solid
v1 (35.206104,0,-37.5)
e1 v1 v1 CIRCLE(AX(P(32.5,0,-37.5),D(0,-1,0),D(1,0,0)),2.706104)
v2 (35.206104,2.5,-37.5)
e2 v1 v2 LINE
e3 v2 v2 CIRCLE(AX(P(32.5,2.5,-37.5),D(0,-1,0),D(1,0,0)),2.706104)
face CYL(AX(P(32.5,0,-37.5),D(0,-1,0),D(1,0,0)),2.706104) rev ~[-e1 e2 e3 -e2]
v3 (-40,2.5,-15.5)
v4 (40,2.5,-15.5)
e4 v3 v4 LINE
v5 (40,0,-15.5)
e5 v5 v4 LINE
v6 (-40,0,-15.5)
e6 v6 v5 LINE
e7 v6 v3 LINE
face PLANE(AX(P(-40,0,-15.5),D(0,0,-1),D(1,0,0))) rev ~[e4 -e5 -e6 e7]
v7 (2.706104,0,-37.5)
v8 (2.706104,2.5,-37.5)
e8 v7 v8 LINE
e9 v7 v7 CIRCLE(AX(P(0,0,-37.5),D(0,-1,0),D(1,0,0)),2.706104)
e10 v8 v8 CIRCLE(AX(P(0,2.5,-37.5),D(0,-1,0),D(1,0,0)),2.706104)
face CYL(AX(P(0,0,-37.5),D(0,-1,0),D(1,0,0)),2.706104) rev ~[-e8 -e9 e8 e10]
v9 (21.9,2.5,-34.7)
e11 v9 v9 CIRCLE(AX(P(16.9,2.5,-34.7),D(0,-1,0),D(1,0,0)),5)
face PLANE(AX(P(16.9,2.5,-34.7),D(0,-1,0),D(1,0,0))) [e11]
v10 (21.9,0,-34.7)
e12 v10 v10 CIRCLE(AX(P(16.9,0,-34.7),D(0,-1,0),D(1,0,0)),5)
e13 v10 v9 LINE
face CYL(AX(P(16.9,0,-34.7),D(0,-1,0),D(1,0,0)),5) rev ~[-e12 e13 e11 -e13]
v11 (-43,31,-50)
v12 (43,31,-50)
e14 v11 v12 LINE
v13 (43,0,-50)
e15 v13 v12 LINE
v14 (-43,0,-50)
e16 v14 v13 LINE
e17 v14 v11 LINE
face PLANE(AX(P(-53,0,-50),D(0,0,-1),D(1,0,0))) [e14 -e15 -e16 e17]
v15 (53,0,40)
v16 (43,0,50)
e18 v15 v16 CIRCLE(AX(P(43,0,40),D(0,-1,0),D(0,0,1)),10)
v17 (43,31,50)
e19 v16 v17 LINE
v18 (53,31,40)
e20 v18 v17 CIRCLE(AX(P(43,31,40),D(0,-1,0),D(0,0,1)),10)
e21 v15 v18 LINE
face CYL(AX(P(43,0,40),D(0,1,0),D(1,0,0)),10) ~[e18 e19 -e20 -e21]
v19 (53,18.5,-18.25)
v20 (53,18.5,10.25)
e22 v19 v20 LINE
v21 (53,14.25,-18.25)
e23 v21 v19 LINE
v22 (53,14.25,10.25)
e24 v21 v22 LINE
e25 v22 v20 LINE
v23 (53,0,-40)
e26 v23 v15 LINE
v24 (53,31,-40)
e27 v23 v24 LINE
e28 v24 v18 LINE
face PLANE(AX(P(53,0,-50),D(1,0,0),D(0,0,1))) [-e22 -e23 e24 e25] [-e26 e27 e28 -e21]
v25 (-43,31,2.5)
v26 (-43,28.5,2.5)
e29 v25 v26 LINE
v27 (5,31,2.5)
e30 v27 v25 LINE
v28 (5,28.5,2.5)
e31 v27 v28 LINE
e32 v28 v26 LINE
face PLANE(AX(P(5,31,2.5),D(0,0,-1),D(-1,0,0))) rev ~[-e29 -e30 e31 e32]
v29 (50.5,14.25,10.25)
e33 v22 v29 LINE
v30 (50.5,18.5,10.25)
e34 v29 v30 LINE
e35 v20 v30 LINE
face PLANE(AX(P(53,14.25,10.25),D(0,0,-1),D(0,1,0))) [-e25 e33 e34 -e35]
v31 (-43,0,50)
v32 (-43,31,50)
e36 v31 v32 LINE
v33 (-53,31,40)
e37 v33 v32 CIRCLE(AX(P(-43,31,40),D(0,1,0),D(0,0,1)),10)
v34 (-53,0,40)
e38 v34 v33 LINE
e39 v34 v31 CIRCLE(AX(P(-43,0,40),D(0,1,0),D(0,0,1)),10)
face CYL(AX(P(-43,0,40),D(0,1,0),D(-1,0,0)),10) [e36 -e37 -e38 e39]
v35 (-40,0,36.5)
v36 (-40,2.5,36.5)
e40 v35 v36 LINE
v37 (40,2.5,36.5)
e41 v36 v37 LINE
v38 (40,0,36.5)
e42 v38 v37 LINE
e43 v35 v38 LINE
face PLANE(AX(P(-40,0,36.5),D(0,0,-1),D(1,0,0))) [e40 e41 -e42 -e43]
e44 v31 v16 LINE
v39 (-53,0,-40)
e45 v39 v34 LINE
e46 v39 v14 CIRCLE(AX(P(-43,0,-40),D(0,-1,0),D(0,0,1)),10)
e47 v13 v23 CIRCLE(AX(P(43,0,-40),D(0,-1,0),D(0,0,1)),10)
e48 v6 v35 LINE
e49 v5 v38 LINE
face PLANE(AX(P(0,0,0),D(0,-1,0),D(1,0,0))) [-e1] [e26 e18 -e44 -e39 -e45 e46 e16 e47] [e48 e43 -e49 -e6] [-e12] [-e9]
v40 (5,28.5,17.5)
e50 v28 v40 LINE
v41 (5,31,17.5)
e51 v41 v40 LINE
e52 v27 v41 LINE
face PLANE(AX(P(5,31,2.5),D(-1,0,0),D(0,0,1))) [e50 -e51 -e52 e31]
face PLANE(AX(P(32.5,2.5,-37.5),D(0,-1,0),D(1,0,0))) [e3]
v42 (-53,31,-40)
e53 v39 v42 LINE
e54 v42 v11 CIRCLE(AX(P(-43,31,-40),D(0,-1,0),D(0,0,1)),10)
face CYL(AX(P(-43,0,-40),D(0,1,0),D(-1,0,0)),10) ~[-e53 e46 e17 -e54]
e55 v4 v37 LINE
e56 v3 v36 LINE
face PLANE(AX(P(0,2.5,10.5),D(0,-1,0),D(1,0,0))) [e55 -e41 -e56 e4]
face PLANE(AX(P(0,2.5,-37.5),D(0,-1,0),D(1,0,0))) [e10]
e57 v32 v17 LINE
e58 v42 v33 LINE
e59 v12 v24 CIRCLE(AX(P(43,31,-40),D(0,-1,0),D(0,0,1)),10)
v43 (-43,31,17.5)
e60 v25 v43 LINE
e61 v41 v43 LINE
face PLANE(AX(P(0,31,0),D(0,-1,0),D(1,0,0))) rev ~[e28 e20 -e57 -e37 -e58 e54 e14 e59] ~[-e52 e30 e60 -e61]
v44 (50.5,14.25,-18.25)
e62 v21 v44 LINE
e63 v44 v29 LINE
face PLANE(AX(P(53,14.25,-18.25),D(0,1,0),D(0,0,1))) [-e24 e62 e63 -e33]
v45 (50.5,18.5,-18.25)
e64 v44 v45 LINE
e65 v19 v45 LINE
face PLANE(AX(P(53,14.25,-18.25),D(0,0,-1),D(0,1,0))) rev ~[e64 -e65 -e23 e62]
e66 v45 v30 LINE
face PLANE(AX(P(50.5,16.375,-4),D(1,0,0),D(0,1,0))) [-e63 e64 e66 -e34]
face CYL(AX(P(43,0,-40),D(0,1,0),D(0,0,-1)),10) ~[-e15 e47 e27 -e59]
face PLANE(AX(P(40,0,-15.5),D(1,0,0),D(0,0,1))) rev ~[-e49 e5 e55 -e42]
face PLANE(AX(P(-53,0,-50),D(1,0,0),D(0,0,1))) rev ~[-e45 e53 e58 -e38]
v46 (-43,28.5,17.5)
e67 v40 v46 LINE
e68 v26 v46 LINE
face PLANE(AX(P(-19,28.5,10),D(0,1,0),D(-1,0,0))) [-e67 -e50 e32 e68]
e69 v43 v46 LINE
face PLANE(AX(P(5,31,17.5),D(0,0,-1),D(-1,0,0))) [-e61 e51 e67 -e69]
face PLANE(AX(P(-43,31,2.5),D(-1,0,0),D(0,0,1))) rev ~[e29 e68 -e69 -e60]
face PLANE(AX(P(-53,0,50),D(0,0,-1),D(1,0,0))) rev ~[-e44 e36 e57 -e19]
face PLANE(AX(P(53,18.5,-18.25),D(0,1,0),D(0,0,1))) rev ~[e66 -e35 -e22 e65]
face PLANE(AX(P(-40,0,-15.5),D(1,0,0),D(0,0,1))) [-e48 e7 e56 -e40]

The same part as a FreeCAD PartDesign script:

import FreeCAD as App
import Part
import Sketcher
Q = App.Units.Quantity


def edges_at(feature, points):
    """Names of the edges that pass closest to the given points."""
    edges = feature.Shape.Edges
    near = lambda p: min(range(len(edges)), key=lambda i: edges[i].distToShape(Part.Vertex(*p))[0])
    return sorted({f"Edge{near(p) + 1}" for p in points})

doc = App.newDocument("Part")
params = doc.addObject("Spreadsheet::Sheet", "Params")
for row, (alias, value) in enumerate([
    ("sketch1_width", "106 mm"),
    ("sketch1_height", "100 mm"),
    ("pad1_length", "31 mm"),
    ("fillet_radius", "10 mm"),
    ("sketch2_diameter", "10 mm"),
    ("sketch2_width", "80 mm"),
    ("sketch2_height", "52 mm"),
    ("pocket1_length", "2.5 mm"),
    ("sketch3_width", "48 mm"),
    ("sketch3_height", "15 mm"),
    ("pocket2_length", "2.5 mm"),
    ("sketch4_height", "28.5 mm"),
    ("sketch4_width", "4.25 mm"),
    ("pocket3_length", "2.5 mm"),
], start=1):
    params.set(f"A{row}", alias)
    params.set(f"B{row}", "=" + value)
    params.setAlias(f"B{row}", alias)

body = doc.addObject("PartDesign::Body", "Body")

sketch1 = body.newObject("Sketcher::SketchObject", "Sketch")
sketch1.AttachmentSupport = (doc.getObject("XZ_Plane"), [""])
sketch1.MapMode = "FlatFace"
sketch1.addGeometry([
    Part.LineSegment(App.Vector(-53, 50, 0), App.Vector(-53, -50, 0)),
    Part.LineSegment(App.Vector(-53, -50, 0), App.Vector(53, -50, 0)),
    Part.LineSegment(App.Vector(53, -50, 0), App.Vector(53, 50, 0)),
    Part.LineSegment(App.Vector(53, 50, 0), App.Vector(-53, 50, 0)),
], False)
sketch1.addConstraint([
    Sketcher.Constraint("Coincident", 0, 2, 1, 1),
    Sketcher.Constraint("Coincident", 1, 2, 2, 1),
    Sketcher.Constraint("Coincident", 2, 2, 3, 1),
    Sketcher.Constraint("Coincident", 3, 2, 0, 1),
    Sketcher.Constraint("Vertical", 0),
    Sketcher.Constraint("Horizontal", 1),
    Sketcher.Constraint("Vertical", 2),
    Sketcher.Constraint("Horizontal", 3),
    Sketcher.Constraint("Symmetric", 0, 2, 2, 2, -1, 1),
    Sketcher.Constraint("DistanceX", 1, 1, 1, 2, Q("106 mm")),
    Sketcher.Constraint("DistanceY", 0, 2, 0, 1, Q("100 mm")),
])
sketch1.setExpression("Constraints[9]", "Params.sketch1_width")
sketch1.setExpression("Constraints[10]", "Params.sketch1_height")
pad1 = body.newObject("PartDesign::Pad", "Pad")
pad1.Profile = sketch1
pad1.setExpression("Length", "Params.pad1_length")
pad1.Reversed = True
doc.recompute()

fillet = body.newObject("PartDesign::Fillet", "Fillet")
fillet.Base = (pad1, edges_at(pad1, [
    (53, 15.5, -50),
    (53, 15.5, 50),
    (-53, 15.5, 50),
    (-53, 15.5, -50),
]))
fillet.setExpression("Radius", "Params.fillet_radius")

sketch2 = body.newObject("Sketcher::SketchObject", "Sketch001")
sketch2.AttachmentSupport = (doc.getObject("XZ_Plane"), [""])
sketch2.MapMode = "FlatFace"
sketch2.addGeometry([
    Part.LineSegment(App.Vector(-40, 36.5, 0), App.Vector(-40, -15.5, 0)),
    Part.LineSegment(App.Vector(-40, -15.5, 0), App.Vector(40, -15.5, 0)),
    Part.LineSegment(App.Vector(40, -15.5, 0), App.Vector(40, 36.5, 0)),
    Part.LineSegment(App.Vector(40, 36.5, 0), App.Vector(-40, 36.5, 0)),
    Part.Circle(App.Vector(0, -37.5, 0), App.Vector(0, 0, 1), 2.706104),
    Part.Circle(App.Vector(16.9, -34.7, 0), App.Vector(0, 0, 1), 5),
    Part.Circle(App.Vector(32.5, -37.5, 0), App.Vector(0, 0, 1), 2.706104),
], False)
sketch2.addConstraint([
    Sketcher.Constraint("Coincident", 0, 2, 1, 1),
    Sketcher.Constraint("Coincident", 1, 2, 2, 1),
    Sketcher.Constraint("Coincident", 2, 2, 3, 1),
    Sketcher.Constraint("Coincident", 3, 2, 0, 1),
    Sketcher.Constraint("Vertical", 0),
    Sketcher.Constraint("Horizontal", 1),
    Sketcher.Constraint("Vertical", 2),
    Sketcher.Constraint("Horizontal", 3),
    Sketcher.Constraint("Equal", 4, 6),
    Sketcher.Constraint("PointOnObject", 4, 3, -2),
    Sketcher.Constraint("Horizontal", 4, 3, 6, 3),
    Sketcher.Constraint("Diameter", 5, Q("10 mm")),
    Sketcher.Constraint("DistanceX", 1, 1, 1, 2, Q("80 mm")),
    Sketcher.Constraint("DistanceY", 0, 2, 0, 1, Q("52 mm")),
    Sketcher.Constraint("DistanceX", 0, 2, -1, 1, Q("40 mm")),
    Sketcher.Constraint("DistanceY", 4, 3, 0, 2, Q("22 mm")),
    Sketcher.Constraint("DistanceY", 4, 3, -1, 1, Q("37.5 mm")),
    Sketcher.Constraint("DistanceX", -1, 1, 5, 3, Q("16.9 mm")),
    Sketcher.Constraint("DistanceY", 5, 3, -1, 1, Q("34.7 mm")),
    Sketcher.Constraint("DistanceX", -1, 1, 6, 3, Q("32.5 mm")),
    Sketcher.Constraint("Diameter", 4, Q("5.412208 mm")),
])
sketch2.setExpression("Constraints[11]", "Params.sketch2_diameter")
sketch2.setExpression("Constraints[12]", "Params.sketch2_width")
sketch2.setExpression("Constraints[13]", "Params.sketch2_height")
pocket1 = body.newObject("PartDesign::Pocket", "Pocket")
pocket1.Profile = sketch2
pocket1.setExpression("Length", "Params.pocket1_length")

sketch3 = body.newObject("Sketcher::SketchObject", "Sketch002")
sketch3.AttachmentSupport = (doc.getObject("XZ_Plane"), [""])
sketch3.MapMode = "FlatFace"
sketch3.AttachmentOffset = App.Placement(App.Vector(0, 0, -31), App.Rotation())
sketch3.addGeometry([
    Part.LineSegment(App.Vector(5, 17.5, 0), App.Vector(5, 2.5, 0)),
    Part.LineSegment(App.Vector(5, 2.5, 0), App.Vector(-43, 2.5, 0)),
    Part.LineSegment(App.Vector(-43, 2.5, 0), App.Vector(-43, 17.5, 0)),
    Part.LineSegment(App.Vector(-43, 17.5, 0), App.Vector(5, 17.5, 0)),
], False)
sketch3.addConstraint([
    Sketcher.Constraint("Coincident", 0, 2, 1, 1),
    Sketcher.Constraint("Coincident", 1, 2, 2, 1),
    Sketcher.Constraint("Coincident", 2, 2, 3, 1),
    Sketcher.Constraint("Coincident", 3, 2, 0, 1),
    Sketcher.Constraint("Vertical", 0),
    Sketcher.Constraint("Horizontal", 1),
    Sketcher.Constraint("Vertical", 2),
    Sketcher.Constraint("Horizontal", 3),
    Sketcher.Constraint("DistanceX", 1, 2, 1, 1, Q("48 mm")),
    Sketcher.Constraint("DistanceY", 0, 2, 0, 1, Q("15 mm")),
    Sketcher.Constraint("DistanceX", -1, 1, 0, 2, Q("5 mm")),
    Sketcher.Constraint("DistanceY", -1, 1, 0, 2, Q("2.5 mm")),
])
sketch3.setExpression("Constraints[8]", "Params.sketch3_width")
sketch3.setExpression("Constraints[9]", "Params.sketch3_height")
pocket2 = body.newObject("PartDesign::Pocket", "Pocket001")
pocket2.Profile = sketch3
pocket2.setExpression("Length", "Params.pocket2_length")
pocket2.Reversed = True

sketch4 = body.newObject("Sketcher::SketchObject", "Sketch003")
sketch4.AttachmentSupport = (doc.getObject("YZ_Plane"), [""])
sketch4.MapMode = "FlatFace"
sketch4.AttachmentOffset = App.Placement(App.Vector(0, 0, 53), App.Rotation())
sketch4.addGeometry([
    Part.LineSegment(App.Vector(14.25, 10.25, 0), App.Vector(14.25, -18.25, 0)),
    Part.LineSegment(App.Vector(14.25, -18.25, 0), App.Vector(18.5, -18.25, 0)),
    Part.LineSegment(App.Vector(18.5, -18.25, 0), App.Vector(18.5, 10.25, 0)),
    Part.LineSegment(App.Vector(18.5, 10.25, 0), App.Vector(14.25, 10.25, 0)),
], False)
sketch4.addConstraint([
    Sketcher.Constraint("Coincident", 0, 2, 1, 1),
    Sketcher.Constraint("Coincident", 1, 2, 2, 1),
    Sketcher.Constraint("Coincident", 2, 2, 3, 1),
    Sketcher.Constraint("Coincident", 3, 2, 0, 1),
    Sketcher.Constraint("Vertical", 0),
    Sketcher.Constraint("Horizontal", 1),
    Sketcher.Constraint("Vertical", 2),
    Sketcher.Constraint("Horizontal", 3),
    Sketcher.Constraint("DistanceY", 0, 2, 0, 1, Q("28.5 mm")),
    Sketcher.Constraint("DistanceX", 1, 1, 1, 2, Q("4.25 mm")),
    Sketcher.Constraint("DistanceX", -1, 1, 1, 2, Q("18.5 mm")),
    Sketcher.Constraint("DistanceY", 0, 2, -1, 1, Q("18.25 mm")),
])
sketch4.setExpression("Constraints[8]", "Params.sketch4_height")
sketch4.setExpression("Constraints[9]", "Params.sketch4_width")
pocket3 = body.newObject("PartDesign::Pocket", "Pocket002")
pocket3.Profile = sketch4
pocket3.setExpression("Length", "Params.pocket3_length")

doc.recompute()
